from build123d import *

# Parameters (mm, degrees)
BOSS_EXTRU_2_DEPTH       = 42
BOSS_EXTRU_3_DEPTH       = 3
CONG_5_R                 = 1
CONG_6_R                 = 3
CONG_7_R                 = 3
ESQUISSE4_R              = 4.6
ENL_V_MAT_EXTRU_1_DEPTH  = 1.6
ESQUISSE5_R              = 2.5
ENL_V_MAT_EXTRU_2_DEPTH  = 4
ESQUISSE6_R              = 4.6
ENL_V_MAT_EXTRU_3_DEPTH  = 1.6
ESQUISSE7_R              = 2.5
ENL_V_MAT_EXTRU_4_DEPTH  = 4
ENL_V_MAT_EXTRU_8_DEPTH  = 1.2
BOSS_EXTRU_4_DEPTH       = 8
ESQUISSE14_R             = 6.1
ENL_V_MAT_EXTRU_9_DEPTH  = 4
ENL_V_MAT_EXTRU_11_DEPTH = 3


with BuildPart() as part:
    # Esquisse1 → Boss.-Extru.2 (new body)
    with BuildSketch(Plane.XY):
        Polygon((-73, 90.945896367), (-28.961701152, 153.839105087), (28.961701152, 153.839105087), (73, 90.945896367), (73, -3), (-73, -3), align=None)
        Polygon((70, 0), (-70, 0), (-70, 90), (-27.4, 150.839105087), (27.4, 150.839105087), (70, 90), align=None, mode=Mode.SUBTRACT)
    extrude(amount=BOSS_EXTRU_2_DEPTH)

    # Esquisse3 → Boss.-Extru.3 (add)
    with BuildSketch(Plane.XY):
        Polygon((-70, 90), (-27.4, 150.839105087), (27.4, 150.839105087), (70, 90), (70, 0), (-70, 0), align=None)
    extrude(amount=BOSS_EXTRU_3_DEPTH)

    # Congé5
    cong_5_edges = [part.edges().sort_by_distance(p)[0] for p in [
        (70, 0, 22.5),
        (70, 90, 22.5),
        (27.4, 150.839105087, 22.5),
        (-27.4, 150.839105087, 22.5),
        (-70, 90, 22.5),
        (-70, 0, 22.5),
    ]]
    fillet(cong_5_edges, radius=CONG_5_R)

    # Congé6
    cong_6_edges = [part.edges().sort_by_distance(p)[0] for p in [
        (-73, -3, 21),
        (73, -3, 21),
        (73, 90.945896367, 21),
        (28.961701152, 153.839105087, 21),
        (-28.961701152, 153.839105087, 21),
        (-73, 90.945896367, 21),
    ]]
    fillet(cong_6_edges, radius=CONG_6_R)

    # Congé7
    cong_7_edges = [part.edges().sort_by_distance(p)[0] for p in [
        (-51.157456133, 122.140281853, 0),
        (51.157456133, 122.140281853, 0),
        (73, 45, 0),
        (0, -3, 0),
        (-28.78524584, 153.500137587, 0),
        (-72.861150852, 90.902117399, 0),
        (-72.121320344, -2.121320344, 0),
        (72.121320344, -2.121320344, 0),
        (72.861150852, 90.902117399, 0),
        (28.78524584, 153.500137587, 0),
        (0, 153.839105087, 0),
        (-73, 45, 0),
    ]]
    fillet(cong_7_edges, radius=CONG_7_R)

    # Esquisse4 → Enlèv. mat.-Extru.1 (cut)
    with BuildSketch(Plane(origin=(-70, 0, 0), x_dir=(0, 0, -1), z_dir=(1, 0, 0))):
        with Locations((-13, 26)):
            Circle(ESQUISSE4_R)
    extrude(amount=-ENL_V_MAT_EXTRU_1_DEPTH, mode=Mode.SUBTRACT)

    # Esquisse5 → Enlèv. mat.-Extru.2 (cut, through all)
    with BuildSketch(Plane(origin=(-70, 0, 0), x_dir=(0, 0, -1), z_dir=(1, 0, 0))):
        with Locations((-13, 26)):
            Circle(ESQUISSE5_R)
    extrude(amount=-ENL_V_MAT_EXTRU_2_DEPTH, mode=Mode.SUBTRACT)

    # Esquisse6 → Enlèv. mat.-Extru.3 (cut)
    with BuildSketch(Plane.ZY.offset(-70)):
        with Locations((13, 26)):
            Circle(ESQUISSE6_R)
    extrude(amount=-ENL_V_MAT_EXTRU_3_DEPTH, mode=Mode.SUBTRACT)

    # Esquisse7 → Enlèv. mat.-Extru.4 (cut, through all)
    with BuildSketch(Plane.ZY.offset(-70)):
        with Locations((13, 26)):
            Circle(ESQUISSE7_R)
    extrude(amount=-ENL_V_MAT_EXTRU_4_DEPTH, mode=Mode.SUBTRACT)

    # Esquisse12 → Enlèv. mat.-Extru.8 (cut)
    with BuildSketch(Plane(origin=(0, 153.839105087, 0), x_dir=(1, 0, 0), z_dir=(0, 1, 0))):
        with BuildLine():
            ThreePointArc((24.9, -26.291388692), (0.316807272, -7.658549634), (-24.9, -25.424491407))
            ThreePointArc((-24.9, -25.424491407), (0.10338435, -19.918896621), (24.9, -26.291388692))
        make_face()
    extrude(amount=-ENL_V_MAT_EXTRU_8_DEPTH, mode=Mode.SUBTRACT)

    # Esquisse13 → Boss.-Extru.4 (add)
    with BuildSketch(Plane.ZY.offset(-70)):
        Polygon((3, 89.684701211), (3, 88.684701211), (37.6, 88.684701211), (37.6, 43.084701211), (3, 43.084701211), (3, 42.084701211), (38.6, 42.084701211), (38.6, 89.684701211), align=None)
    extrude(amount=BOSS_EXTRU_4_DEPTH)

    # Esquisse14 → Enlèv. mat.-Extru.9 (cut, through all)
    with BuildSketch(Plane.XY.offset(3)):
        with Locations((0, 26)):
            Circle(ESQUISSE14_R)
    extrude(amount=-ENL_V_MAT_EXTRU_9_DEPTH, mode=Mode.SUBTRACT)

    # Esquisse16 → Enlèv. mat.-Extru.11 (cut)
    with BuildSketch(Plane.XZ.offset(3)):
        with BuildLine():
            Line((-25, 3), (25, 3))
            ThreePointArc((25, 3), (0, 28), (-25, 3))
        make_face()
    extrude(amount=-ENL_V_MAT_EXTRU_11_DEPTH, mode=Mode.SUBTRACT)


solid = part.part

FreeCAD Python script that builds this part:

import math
import FreeCAD as App
import Part
import Sketcher

V = App.Vector
Q = App.Units.Quantity


def edges_at(feature, points):
    """Names of the edges that pass closest to the given points."""
    edges = feature.Shape.Edges
    near = lambda p: min(range(len(edges)), key=lambda i: edges[i].distToShape(Part.Vertex(*p))[0])
    return sorted({f"Edge{near(p) + 1}" for p in points})

doc = App.newDocument("Part")
body = doc.addObject("PartDesign::Body", "Body")

# Sketch on XY plane
sketch1 = body.newObject("Sketcher::SketchObject", "Sketch")
sketch1.AttachmentSupport = (doc.getObject("XY_Plane"), [""])
sketch1.MapMode = "FlatFace"
sketch1.addGeometry(Part.LineSegment(V(-29, 154, 0), V(-73, 91, 0)), False)
sketch1.addGeometry(Part.LineSegment(V(-73, 91, 0), V(-73, -3, 0)), False)
sketch1.addGeometry(Part.LineSegment(V(-73, -3, 0), V(73, -3, 0)), False)
sketch1.addGeometry(Part.LineSegment(V(73, -3, 0), V(73, 91, 0)), False)
sketch1.addGeometry(Part.LineSegment(V(73, 91, 0), V(29, 154, 0)), False)
sketch1.addGeometry(Part.LineSegment(V(29, 154, 0), V(-29, 154, 0)), False)
sketch1.addGeometry(Part.LineSegment(V(70, 0, 0), V(-70, 0, 0)), False)
sketch1.addGeometry(Part.LineSegment(V(-70, 0, 0), V(-70, 90, 0)), False)
sketch1.addGeometry(Part.LineSegment(V(-70, 90, 0), V(-27, 151, 0)), False)
sketch1.addGeometry(Part.LineSegment(V(-27, 151, 0), V(27, 151, 0)), False)
sketch1.addGeometry(Part.LineSegment(V(27, 151, 0), V(70, 90, 0)), False)
sketch1.addGeometry(Part.LineSegment(V(70, 90, 0), V(70, 0, 0)), False)
sketch1.addConstraint(Sketcher.Constraint("Coincident", 0, 2, 1, 1))
sketch1.addConstraint(Sketcher.Constraint("Coincident", 1, 2, 2, 1))
sketch1.addConstraint(Sketcher.Constraint("Coincident", 2, 2, 3, 1))
sketch1.addConstraint(Sketcher.Constraint("Coincident", 3, 2, 4, 1))
sketch1.addConstraint(Sketcher.Constraint("Coincident", 4, 2, 5, 1))
sketch1.addConstraint(Sketcher.Constraint("Coincident", 5, 2, 0, 1))
sketch1.addConstraint(Sketcher.Constraint("Coincident", 6, 2, 7, 1))
sketch1.addConstraint(Sketcher.Constraint("Coincident", 7, 2, 8, 1))
sketch1.addConstraint(Sketcher.Constraint("Coincident", 8, 2, 9, 1))
sketch1.addConstraint(Sketcher.Constraint("Coincident", 9, 2, 10, 1))
sketch1.addConstraint(Sketcher.Constraint("Coincident", 10, 2, 11, 1))
sketch1.addConstraint(Sketcher.Constraint("Coincident", 11, 2, 6, 1))
sketch1.addConstraint(Sketcher.Constraint("Vertical", 1))
sketch1.addConstraint(Sketcher.Constraint("Horizontal", 2))
sketch1.addConstraint(Sketcher.Constraint("Vertical", 3))
sketch1.addConstraint(Sketcher.Constraint("Horizontal", 5))
sketch1.addConstraint(Sketcher.Constraint("Horizontal", 6))
sketch1.addConstraint(Sketcher.Constraint("Vertical", 7))
sketch1.addConstraint(Sketcher.Constraint("Horizontal", 9))
sketch1.addConstraint(Sketcher.Constraint("Vertical", 11))
sketch1.addConstraint(Sketcher.Constraint("Symmetric", 6, 2, 11, 2, -1, 1))
sketch1.addConstraint(Sketcher.Constraint("Symmetric", 0, 2, 3, 2, -2))
sketch1.addConstraint(Sketcher.Constraint("Parallel", 0, 8))
sketch1.addConstraint(Sketcher.Constraint("Parallel", 4, 10))
sketch1.addConstraint(Sketcher.Constraint("Horizontal", 7, 2, 10, 2))
sketch1.addConstraint(Sketcher.Constraint("Equal", 0, 4))
sketch1.addConstraint(Sketcher.Constraint("DistanceX", 2, 1, 2, 2, Q("146 mm")))
sketch1.addConstraint(Sketcher.Constraint("DistanceX", 6, 2, 6, 1, Q("140 mm")))
sketch1.addConstraint(Sketcher.Constraint("DistanceY", 7, 1, 7, 2, Q("90 mm")))
sketch1.addConstraint(Sketcher.Constraint("Angle", 0, Q("-125 deg")))
sketch1.addConstraint(Sketcher.Constraint("DistanceX", 9, 1, 9, 2, Q("54.8 mm")))
sketch1.addConstraint(Sketcher.Constraint("DistanceY", 1, 2, -1, 1, Q("3 mm")))
sketch1.addConstraint(Sketcher.Constraint("DistanceY", 8, 2, 5, 2, Q("3 mm")))
sketch1.addConstraint(Sketcher.Constraint("DistanceX", -1, 1, 4, 2, Q("28.961701 mm")))
pad1 = body.newObject("PartDesign::Pad", "Pad")
pad1.Profile = sketch1
pad1.Length = 42

# Sketch on XY plane
sketch2 = body.newObject("Sketcher::SketchObject", "Sketch001")
sketch2.AttachmentSupport = (doc.getObject("XY_Plane"), [""])
sketch2.MapMode = "FlatFace"
sketch2.addGeometry(Part.LineSegment(V(-27, 151, 0), V(-70, 90, 0)), False)
sketch2.addGeometry(Part.LineSegment(V(-70, 90, 0), V(-70, 0, 0)), False)
sketch2.addGeometry(Part.LineSegment(V(-70, 0, 0), V(70, 0, 0)), False)
sketch2.addGeometry(Part.LineSegment(V(70, 0, 0), V(70, 90, 0)), False)
sketch2.addGeometry(Part.LineSegment(V(70, 90, 0), V(27, 151, 0)), False)
sketch2.addGeometry(Part.LineSegment(V(27, 151, 0), V(-27, 151, 0)), False)
sketch2.addConstraint(Sketcher.Constraint("Coincident", 0, 2, 1, 1))
sketch2.addConstraint(Sketcher.Constraint("Coincident", 1, 2, 2, 1))
sketch2.addConstraint(Sketcher.Constraint("Coincident", 2, 2, 3, 1))
sketch2.addConstraint(Sketcher.Constraint("Coincident", 3, 2, 4, 1))
sketch2.addConstraint(Sketcher.Constraint("Coincident", 4, 2, 5, 1))
sketch2.addConstraint(Sketcher.Constraint("Coincident", 5, 2, 0, 1))
sketch2.addConstraint(Sketcher.Constraint("Vertical", 1))
sketch2.addConstraint(Sketcher.Constraint("Horizontal", 2))
sketch2.addConstraint(Sketcher.Constraint("Vertical", 3))
sketch2.addConstraint(Sketcher.Constraint("Horizontal", 5))
sketch2.addConstraint(Sketcher.Constraint("Symmetric", 1, 2, 2, 2, -1, 1))
sketch2.addConstraint(Sketcher.Constraint("Horizontal", 0, 2, 3, 2))
sketch2.addConstraint(Sketcher.Constraint("Equal", 0, 4))
sketch2.addConstraint(Sketcher.Constraint("DistanceX", 2, 1, 2, 2, Q("140 mm")))
sketch2.addConstraint(Sketcher.Constraint("DistanceY", 1, 2, 1, 1, Q("90 mm")))
sketch2.addConstraint(Sketcher.Constraint("Angle", 0, Q("-125 deg")))
sketch2.addConstraint(Sketcher.Constraint("DistanceX", 5, 2, 5, 1, Q("54.8 mm")))
pad2 = body.newObject("PartDesign::Pad", "Pad001")
pad2.Profile = sketch2
pad2.Length = 3
doc.recompute()

fillet = body.newObject("PartDesign::Fillet", "Fillet")
fillet.Base = (pad2, edges_at(pad2, [
    (70, 0, 22.5),
    (70, 90, 22.5),
    (27.4, 150.839, 22.5),
    (-27.4, 150.839, 22.5),
    (-70, 90, 22.5),
    (-70, 0, 22.5),
]))
fillet.Radius = 1
doc.recompute()

fillet2 = body.newObject("PartDesign::Fillet", "Fillet001")
fillet2.Base = (fillet, edges_at(fillet, [
    (-73, -3, 21),
    (73, -3, 21),
    (73, 90.946, 21),
    (28.962, 153.839, 21),
    (-28.962, 153.839, 21),
    (-73, 90.946, 21),
]))
fillet2.Radius = 3
doc.recompute()

fillet3 = body.newObject("PartDesign::Fillet", "Fillet002")
fillet3.Base = (fillet2, edges_at(fillet2, [
    (-51.157, 122.14, 0),
    (51.157, 122.14, 0),
    (73, 45, 0),
    (0, -3, 0),
    (-28.785, 153.5, 0),
    (-72.861, 90.902, 0),
    (-72.121, -2.121, 0),
    (72.121, -2.121, 0),
    (72.861, 90.902, 0),
    (28.785, 153.5, 0),
    (0, 153.839, 0),
    (-73, 45, 0),
]))
fillet3.Radius = 3

# Sketch on YZ plane
sketch3 = body.newObject("Sketcher::SketchObject", "Sketch002")
sketch3.AttachmentSupport = (doc.getObject("YZ_Plane"), [""])
sketch3.MapMode = "FlatFace"
sketch3.AttachmentOffset = App.Placement(V(0, 0, -70), App.Rotation())
sketch3.addGeometry(Part.Circle(V(26, 13, 0), V(0, 0, 1), 4.6), False)
sketch3.addConstraint(Sketcher.Constraint("Diameter", 0, Q("9.2 mm")))
sketch3.addConstraint(Sketcher.Constraint("DistanceX", -1, 1, 0, 3, Q("26 mm")))
sketch3.addConstraint(Sketcher.Constraint("DistanceY", -1, 1, 0, 3, Q("13 mm")))
pocket1 = body.newObject("PartDesign::Pocket", "Pocket")
pocket1.Profile = sketch3
pocket1.Length = 1.6

# Sketch on YZ plane
sketch4 = body.newObject("Sketcher::SketchObject", "Sketch003")
sketch4.AttachmentSupport = (doc.getObject("YZ_Plane"), [""])
sketch4.MapMode = "FlatFace"
sketch4.AttachmentOffset = App.Placement(V(0, 0, -70), App.Rotation())
sketch4.addGeometry(Part.Circle(V(26, 13, 0), V(0, 0, 1), 2.5), False)
sketch4.addConstraint(Sketcher.Constraint("Diameter", 0, Q("5 mm")))
sketch4.addConstraint(Sketcher.Constraint("DistanceX", -1, 1, 0, 3, Q("26 mm")))
sketch4.addConstraint(Sketcher.Constraint("DistanceY", -1, 1, 0, 3, Q("13 mm")))
pocket2 = body.newObject("PartDesign::Pocket", "Pocket001")
pocket2.Profile = sketch4
pocket2.Type = "ThroughAll"

# Sketch on YZ plane
sketch5 = body.newObject("Sketcher::SketchObject", "Sketch004")
sketch5.AttachmentSupport = (doc.getObject("YZ_Plane"), [""])
sketch5.MapMode = "FlatFace"
sketch5.AttachmentOffset = App.Placement(V(0, 0, 70), App.Rotation())
sketch5.addGeometry(Part.Circle(V(26, 13, 0), V(0, 0, 1), 4.6), False)
sketch5.addConstraint(Sketcher.Constraint("Diameter", 0, Q("9.2 mm")))
sketch5.addConstraint(Sketcher.Constraint("DistanceX", -1, 1, 0, 3, Q("26 mm")))
sketch5.addConstraint(Sketcher.Constraint("DistanceY", -1, 1, 0, 3, Q("13 mm")))
pocket3 = body.newObject("PartDesign::Pocket", "Pocket002")
pocket3.Profile = sketch5
pocket3.Length = 1.6
pocket3.Reversed = True

# Sketch on YZ plane
sketch6 = body.newObject("Sketcher::SketchObject", "Sketch005")
sketch6.AttachmentSupport = (doc.getObject("YZ_Plane"), [""])
sketch6.MapMode = "FlatFace"
sketch6.AttachmentOffset = App.Placement(V(0, 0, 70), App.Rotation())
sketch6.addGeometry(Part.Circle(V(26, 13, 0), V(0, 0, 1), 2.5), False)
sketch6.addConstraint(Sketcher.Constraint("Diameter", 0, Q("5 mm")))
sketch6.addConstraint(Sketcher.Constraint("DistanceX", -1, 1, 0, 3, Q("26 mm")))
sketch6.addConstraint(Sketcher.Constraint("DistanceY", -1, 1, 0, 3, Q("13 mm")))
pocket4 = body.newObject("PartDesign::Pocket", "Pocket003")
pocket4.Profile = sketch6
pocket4.Type = "ThroughAll"
pocket4.Reversed = True

# Sketch on XZ plane
sketch7 = body.newObject("Sketcher::SketchObject", "Sketch006")
sketch7.AttachmentSupport = (doc.getObject("XZ_Plane"), [""])
sketch7.MapMode = "FlatFace"
sketch7.AttachmentOffset = App.Placement(V(0, 0, -153.839105), App.Rotation())
sketch7.addGeometry(Part.ArcOfCircle(Part.Circle(V(0, 34, 0), V(0, 0, 1), 26), math.radians(-161), math.radians(-17)), False)
sketch7.addGeometry(Part.ArcOfCircle(Part.Circle(V(-1, 75, 0), V(0, 0, 1), 55), math.radians(-116), math.radians(-62)), False)
sketch7.addConstraint(Sketcher.Constraint("Coincident", 0, 1, 1, 1))
sketch7.addConstraint(Sketcher.Constraint("Coincident", 1, 2, 0, 2))
sketch7.addConstraint(Sketcher.Constraint("DistanceX", 0, 1, -1, 1, Q("24.9 mm")))
sketch7.addConstraint(Sketcher.Constraint("DistanceX", -1, 1, 1, 2, Q("24.9 mm")))
sketch7.addConstraint(Sketcher.Constraint("Radius", 1, Q("55.175679 mm")))
sketch7.addConstraint(Sketcher.Constraint("Radius", 0, Q("26.137467 mm")))
sketch7.addConstraint(Sketcher.Constraint("DistanceY", -1, 1, 1, 3, Q("75.086218 mm")))
sketch7.addConstraint(Sketcher.Constraint("DistanceY", -1, 1, 0, 1, Q("25.424491 mm")))
pocket5 = body.newObject("PartDesign::Pocket", "Pocket004")
pocket5.Profile = sketch7
pocket5.Length = 1.2
pocket5.Reversed = True

# Sketch on YZ plane
sketch8 = body.newObject("Sketcher::SketchObject", "Sketch007")
sketch8.AttachmentSupport = (doc.getObject("YZ_Plane"), [""])
sketch8.MapMode = "FlatFace"
sketch8.AttachmentOffset = App.Placement(V(0, 0, 70), App.Rotation())
sketch8.addGeometry(Part.LineSegment(V(89.7, 3, 0), V(88.7, 3, 0)), False)
sketch8.addGeometry(Part.LineSegment(V(88.7, 3, 0), V(88.7, 37.6, 0)), False)
sketch8.addGeometry(Part.LineSegment(V(88.7, 37.6, 0), V(43.1, 37.6, 0)), False)
sketch8.addGeometry(Part.LineSegment(V(43.1, 37.6, 0), V(43.1, 3, 0)), False)
sketch8.addGeometry(Part.LineSegment(V(43.1, 3, 0), V(42.1, 3, 0)), False)
sketch8.addGeometry(Part.LineSegment(V(42.1, 3, 0), V(42.1, 38.6, 0)), False)
sketch8.addGeometry(Part.LineSegment(V(42.1, 38.6, 0), V(89.7, 38.6, 0)), False)
sketch8.addGeometry(Part.LineSegment(V(89.7, 38.6, 0), V(89.7, 3, 0)), False)
sketch8.addConstraint(Sketcher.Constraint("Coincident", 0, 2, 1, 1))
sketch8.addConstraint(Sketcher.Constraint("Coincident", 1, 2, 2, 1))
sketch8.addConstraint(Sketcher.Constraint("Coincident", 2, 2, 3, 1))
sketch8.addConstraint(Sketcher.Constraint("Coincident", 3, 2, 4, 1))
sketch8.addConstraint(Sketcher.Constraint("Coincident", 4, 2, 5, 1))
sketch8.addConstraint(Sketcher.Constraint("Coincident", 5, 2, 6, 1))
sketch8.addConstraint(Sketcher.Constraint("Coincident", 6, 2, 7, 1))
sketch8.addConstraint(Sketcher.Constraint("Coincident", 7, 2, 0, 1))
sketch8.addConstraint(Sketcher.Constraint("Horizontal", 0))
sketch8.addConstraint(Sketcher.Constraint("Vertical", 1))
sketch8.addConstraint(Sketcher.Constraint("Horizontal", 2))
sketch8.addConstraint(Sketcher.Constraint("Vertical", 3))
sketch8.addConstraint(Sketcher.Constraint("Horizontal", 4))
sketch8.addConstraint(Sketcher.Constraint("Vertical", 5))
sketch8.addConstraint(Sketcher.Constraint("Horizontal", 6))
sketch8.addConstraint(Sketcher.Constraint("Vertical", 7))
sketch8.addConstraint(Sketcher.Constraint("Horizontal", 0, 2, 3, 2))
sketch8.addConstraint(Sketcher.Constraint("Equal", 0, 4))
sketch8.addConstraint(Sketcher.Constraint("DistanceX", 0, 2, 0, 1, Q("1 mm")))
sketch8.addConstraint(Sketcher.Constraint("DistanceX", 2, 2, 2, 1, Q("45.6 mm")))
sketch8.addConstraint(Sketcher.Constraint("DistanceY", 1, 1, 1, 2, Q("34.6 mm")))
sketch8.addConstraint(Sketcher.Constraint("DistanceY", 5, 1, 5, 2, Q("35.6 mm")))
sketch8.addConstraint(Sketcher.Constraint("DistanceY", -1, 1, 0, 2, Q("3 mm")))
sketch8.addConstraint(Sketcher.Constraint("DistanceX", -1, 1, 0, 2, Q("88.684701 mm")))
pad3 = body.newObject("PartDesign::Pad", "Pad002")
pad3.Profile = sketch8
pad3.Length = 8
pad3.Reversed = True

# Sketch on XY plane
sketch9 = body.newObject("Sketcher::SketchObject", "Sketch008")
sketch9.AttachmentSupport = (doc.getObject("XY_Plane"), [""])
sketch9.MapMode = "FlatFace"
sketch9.AttachmentOffset = App.Placement(V(0, 0, 3), App.Rotation())
sketch9.addGeometry(Part.Circle(V(0, 26, 0), V(0, 0, 1), 6), False)
sketch9.addConstraint(Sketcher.Constraint("PointOnObject", 0, 3, -2))
sketch9.addConstraint(Sketcher.Constraint("Diameter", 0, Q("12.2 mm")))
sketch9.addConstraint(Sketcher.Constraint("DistanceY", -1, 1, 0, 3, Q("26 mm")))
pocket6 = body.newObject("PartDesign::Pocket", "Pocket005")
pocket6.Profile = sketch9
pocket6.Type = "ThroughAll"

# Sketch on XZ plane
sketch10 = body.newObject("Sketcher::SketchObject", "Sketch009")
sketch10.AttachmentSupport = (doc.getObject("XZ_Plane"), [""])
sketch10.MapMode = "FlatFace"
sketch10.AttachmentOffset = App.Placement(V(0, 0, 3), App.Rotation())
sketch10.addGeometry(Part.LineSegment(V(-25, 3, 0), V(25, 3, 0)), False)
sketch10.addGeometry(Part.ArcOfCircle(Part.Circle(V(0, 3, 0), V(0, 0, 1), 25), math.radians(0), math.radians(180)), False)
sketch10.addConstraint(Sketcher.Constraint("Coincident", 0, 1, 1, 2))
sketch10.addConstraint(Sketcher.Constraint("Coincident", 1, 1, 0, 2))
sketch10.addConstraint(Sketcher.Constraint("Horizontal", 0))
sketch10.addConstraint(Sketcher.Constraint("PointOnObject", 1, 3, -2))
sketch10.addConstraint(Sketcher.Constraint("Horizontal", 1, 3, 0, 1))
sketch10.addConstraint(Sketcher.Constraint("Radius", 1, Q("25 mm")))
sketch10.addConstraint(Sketcher.Constraint("DistanceY", -1, 1, 1, 3, Q("3 mm")))
pocket7 = body.newObject("PartDesign::Pocket", "Pocket006")
pocket7.Profile = sketch10
pocket7.Length = 3

doc.recompute()
